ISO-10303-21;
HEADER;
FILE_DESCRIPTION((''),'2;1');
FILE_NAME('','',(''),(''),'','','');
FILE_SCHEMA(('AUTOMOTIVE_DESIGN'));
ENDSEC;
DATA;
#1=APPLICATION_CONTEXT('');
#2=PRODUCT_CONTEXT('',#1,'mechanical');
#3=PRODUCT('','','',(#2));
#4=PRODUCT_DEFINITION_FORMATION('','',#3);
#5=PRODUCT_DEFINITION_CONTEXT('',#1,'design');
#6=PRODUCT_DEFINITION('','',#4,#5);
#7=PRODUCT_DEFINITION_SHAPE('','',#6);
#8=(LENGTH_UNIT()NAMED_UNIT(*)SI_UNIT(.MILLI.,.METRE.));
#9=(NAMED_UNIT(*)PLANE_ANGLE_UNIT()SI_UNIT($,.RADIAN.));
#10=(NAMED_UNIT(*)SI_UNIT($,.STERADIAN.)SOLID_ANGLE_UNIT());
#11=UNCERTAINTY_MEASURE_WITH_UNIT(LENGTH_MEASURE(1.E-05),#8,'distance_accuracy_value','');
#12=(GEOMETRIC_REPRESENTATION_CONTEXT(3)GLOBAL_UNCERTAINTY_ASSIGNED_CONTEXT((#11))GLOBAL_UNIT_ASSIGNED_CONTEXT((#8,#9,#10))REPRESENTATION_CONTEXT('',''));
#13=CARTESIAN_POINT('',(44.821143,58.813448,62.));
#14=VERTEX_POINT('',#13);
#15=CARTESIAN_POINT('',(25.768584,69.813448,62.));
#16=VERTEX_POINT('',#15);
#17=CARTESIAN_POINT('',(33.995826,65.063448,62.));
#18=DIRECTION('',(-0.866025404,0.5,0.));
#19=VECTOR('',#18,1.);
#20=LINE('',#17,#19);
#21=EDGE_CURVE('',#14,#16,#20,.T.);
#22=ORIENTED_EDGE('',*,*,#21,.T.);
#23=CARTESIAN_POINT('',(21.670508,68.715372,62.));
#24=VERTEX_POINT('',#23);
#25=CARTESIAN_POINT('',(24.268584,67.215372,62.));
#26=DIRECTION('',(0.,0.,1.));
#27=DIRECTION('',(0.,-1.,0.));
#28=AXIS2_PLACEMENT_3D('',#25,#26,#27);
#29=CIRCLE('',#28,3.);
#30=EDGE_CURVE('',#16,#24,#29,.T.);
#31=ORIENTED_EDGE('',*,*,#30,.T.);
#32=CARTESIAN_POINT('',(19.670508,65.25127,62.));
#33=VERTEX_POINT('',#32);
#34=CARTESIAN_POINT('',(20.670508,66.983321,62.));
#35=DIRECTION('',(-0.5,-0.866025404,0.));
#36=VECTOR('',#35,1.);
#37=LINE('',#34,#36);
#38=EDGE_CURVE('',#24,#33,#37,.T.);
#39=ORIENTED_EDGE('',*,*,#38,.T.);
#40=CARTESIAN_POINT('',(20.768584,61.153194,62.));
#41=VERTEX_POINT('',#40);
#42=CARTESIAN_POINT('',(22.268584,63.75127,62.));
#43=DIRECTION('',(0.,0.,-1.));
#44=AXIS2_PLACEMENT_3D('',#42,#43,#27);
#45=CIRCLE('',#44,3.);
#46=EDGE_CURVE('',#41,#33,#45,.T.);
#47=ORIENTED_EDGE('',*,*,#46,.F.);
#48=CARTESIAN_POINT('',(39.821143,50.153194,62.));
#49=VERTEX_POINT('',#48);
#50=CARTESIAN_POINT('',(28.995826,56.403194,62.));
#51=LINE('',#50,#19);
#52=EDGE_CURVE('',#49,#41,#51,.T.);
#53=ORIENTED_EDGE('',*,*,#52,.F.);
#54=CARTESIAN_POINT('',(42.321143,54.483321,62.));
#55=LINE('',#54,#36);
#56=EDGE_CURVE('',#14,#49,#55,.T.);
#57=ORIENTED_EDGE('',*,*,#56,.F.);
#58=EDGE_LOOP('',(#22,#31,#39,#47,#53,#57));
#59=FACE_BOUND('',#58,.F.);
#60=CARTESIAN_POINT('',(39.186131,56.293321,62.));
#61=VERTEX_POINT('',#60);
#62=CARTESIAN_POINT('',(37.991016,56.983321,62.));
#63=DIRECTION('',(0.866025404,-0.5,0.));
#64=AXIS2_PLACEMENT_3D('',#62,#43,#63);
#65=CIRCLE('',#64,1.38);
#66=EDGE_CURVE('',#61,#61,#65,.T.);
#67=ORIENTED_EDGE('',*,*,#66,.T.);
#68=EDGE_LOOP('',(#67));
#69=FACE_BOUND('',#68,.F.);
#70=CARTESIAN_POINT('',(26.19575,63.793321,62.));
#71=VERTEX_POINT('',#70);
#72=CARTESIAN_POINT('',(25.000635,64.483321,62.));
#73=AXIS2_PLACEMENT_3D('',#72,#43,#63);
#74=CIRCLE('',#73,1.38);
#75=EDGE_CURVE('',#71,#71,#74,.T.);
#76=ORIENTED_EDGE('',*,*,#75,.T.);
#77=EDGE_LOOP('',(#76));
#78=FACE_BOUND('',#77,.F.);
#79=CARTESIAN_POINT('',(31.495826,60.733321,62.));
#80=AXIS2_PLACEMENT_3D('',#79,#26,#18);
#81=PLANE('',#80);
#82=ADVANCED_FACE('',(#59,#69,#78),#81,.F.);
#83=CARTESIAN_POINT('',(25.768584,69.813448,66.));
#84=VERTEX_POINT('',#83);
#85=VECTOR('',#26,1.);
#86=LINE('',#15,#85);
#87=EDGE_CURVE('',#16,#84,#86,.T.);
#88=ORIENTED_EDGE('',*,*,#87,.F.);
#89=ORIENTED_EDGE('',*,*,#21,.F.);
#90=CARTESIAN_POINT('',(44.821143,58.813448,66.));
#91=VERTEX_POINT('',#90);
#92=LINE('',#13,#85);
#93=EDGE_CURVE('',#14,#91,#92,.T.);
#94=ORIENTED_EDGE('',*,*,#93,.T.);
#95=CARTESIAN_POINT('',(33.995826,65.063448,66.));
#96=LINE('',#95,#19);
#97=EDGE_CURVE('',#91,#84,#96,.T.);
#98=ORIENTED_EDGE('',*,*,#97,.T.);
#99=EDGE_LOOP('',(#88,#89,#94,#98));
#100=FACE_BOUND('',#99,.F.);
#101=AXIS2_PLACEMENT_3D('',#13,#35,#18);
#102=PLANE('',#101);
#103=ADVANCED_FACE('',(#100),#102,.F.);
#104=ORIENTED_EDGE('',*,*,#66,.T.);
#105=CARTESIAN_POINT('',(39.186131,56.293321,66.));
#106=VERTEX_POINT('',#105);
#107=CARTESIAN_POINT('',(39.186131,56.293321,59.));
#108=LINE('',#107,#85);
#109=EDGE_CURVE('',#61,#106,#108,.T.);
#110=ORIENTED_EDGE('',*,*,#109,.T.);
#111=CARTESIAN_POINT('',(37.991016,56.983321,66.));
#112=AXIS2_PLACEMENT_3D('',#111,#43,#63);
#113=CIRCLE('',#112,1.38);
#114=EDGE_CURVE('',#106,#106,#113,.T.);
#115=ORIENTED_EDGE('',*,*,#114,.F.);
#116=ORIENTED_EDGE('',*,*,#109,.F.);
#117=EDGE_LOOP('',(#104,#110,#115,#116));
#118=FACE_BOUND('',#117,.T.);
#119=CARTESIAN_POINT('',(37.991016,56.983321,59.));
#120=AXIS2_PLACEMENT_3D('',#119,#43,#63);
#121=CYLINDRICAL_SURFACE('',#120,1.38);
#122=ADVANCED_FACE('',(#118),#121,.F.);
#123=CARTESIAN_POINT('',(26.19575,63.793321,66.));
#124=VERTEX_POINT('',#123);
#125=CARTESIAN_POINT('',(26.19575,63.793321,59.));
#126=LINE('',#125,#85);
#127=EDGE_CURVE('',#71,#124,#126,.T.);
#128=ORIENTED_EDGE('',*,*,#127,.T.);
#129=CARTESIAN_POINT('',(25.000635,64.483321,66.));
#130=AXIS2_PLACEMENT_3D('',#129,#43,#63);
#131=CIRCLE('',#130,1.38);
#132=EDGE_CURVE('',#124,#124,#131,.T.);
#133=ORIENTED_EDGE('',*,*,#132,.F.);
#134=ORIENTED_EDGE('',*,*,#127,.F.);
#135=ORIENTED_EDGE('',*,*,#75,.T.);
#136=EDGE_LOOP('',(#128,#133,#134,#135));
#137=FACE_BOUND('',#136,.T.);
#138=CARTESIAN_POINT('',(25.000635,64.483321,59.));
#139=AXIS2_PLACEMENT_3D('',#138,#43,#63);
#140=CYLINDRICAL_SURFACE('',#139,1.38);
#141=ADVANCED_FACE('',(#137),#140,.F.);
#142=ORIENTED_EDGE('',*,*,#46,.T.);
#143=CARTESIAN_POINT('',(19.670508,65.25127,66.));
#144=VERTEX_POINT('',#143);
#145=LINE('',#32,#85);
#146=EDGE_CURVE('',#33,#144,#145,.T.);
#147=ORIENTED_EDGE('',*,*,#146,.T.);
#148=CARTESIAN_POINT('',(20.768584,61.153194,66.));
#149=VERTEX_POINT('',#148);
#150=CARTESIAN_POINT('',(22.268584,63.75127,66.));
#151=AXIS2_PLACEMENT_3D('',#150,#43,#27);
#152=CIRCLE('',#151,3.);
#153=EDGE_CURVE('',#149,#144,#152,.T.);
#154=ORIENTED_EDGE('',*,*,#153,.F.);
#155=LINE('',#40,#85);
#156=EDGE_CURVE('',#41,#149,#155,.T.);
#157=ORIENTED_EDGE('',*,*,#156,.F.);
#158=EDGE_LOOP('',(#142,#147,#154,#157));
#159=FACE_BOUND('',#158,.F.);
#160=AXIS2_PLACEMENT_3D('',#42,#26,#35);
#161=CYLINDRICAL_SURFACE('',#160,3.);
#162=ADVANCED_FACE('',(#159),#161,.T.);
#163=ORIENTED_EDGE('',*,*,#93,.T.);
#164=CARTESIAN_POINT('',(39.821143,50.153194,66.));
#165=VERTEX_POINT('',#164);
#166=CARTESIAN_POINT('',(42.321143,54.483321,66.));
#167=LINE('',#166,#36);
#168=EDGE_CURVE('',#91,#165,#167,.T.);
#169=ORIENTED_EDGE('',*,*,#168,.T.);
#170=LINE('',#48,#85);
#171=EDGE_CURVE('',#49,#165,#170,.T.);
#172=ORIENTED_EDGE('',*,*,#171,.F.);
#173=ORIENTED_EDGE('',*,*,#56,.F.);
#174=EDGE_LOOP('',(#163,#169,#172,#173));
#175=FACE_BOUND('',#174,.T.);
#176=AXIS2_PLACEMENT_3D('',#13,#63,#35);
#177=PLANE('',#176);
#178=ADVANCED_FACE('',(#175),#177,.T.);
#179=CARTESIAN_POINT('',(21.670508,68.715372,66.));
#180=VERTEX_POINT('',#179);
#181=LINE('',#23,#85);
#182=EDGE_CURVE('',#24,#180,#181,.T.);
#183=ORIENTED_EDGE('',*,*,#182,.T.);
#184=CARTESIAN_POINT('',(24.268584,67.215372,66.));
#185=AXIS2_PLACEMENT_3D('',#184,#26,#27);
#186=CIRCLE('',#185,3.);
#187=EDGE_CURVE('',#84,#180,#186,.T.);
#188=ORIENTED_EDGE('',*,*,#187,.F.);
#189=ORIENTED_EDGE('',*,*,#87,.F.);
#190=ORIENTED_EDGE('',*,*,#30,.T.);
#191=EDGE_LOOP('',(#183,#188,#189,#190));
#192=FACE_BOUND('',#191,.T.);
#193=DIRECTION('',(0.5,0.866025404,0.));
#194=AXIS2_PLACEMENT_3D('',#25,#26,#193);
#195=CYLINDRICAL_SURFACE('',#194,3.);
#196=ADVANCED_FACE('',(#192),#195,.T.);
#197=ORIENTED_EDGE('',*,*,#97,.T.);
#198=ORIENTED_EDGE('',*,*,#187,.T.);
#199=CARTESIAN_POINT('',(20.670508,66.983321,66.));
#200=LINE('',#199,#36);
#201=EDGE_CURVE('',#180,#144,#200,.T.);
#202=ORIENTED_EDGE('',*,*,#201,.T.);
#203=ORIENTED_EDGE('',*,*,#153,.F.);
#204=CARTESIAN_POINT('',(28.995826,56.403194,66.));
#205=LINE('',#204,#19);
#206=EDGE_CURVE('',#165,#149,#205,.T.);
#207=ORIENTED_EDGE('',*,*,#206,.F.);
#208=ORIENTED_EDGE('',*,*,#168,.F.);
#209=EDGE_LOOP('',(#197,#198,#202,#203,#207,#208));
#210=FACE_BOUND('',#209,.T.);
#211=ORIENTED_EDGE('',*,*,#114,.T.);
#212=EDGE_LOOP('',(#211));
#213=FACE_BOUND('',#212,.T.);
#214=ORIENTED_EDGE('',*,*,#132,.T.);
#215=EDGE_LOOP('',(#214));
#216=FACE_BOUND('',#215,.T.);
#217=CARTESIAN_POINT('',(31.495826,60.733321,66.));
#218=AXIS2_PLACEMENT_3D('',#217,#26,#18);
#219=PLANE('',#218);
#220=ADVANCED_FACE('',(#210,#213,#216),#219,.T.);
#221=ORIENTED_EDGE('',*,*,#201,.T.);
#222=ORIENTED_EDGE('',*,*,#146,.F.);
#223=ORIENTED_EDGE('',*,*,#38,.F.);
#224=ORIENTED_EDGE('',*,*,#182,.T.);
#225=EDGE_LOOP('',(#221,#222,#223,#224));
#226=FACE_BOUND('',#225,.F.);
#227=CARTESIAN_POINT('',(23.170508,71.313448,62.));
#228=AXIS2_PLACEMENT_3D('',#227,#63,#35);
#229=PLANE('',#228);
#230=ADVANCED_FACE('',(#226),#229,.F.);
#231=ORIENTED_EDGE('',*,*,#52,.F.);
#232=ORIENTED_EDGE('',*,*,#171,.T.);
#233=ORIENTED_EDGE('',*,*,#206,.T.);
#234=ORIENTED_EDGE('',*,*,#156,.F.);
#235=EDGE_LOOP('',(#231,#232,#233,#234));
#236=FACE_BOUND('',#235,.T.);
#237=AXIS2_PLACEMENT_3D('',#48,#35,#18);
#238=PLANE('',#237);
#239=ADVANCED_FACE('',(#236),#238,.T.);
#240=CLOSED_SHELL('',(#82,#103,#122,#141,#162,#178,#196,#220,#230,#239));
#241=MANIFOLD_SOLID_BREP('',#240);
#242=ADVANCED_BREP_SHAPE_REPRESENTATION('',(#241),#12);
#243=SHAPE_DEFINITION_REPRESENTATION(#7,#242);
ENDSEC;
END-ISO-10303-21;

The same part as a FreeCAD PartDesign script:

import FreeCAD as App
import Part
import Sketcher
from FreeCAD import Vector
Q = App.Units.Quantity


def edges_at(feature, points):
    """Names of the edges that pass closest to the given points."""
    edges = feature.Shape.Edges
    near = lambda p: min(range(len(edges)), key=lambda i: edges[i].distToShape(Part.Vertex(*p))[0])
    return sorted({f"Edge{near(p) + 1}" for p in points})

doc = App.newDocument("Part")
body = doc.addObject("PartDesign::Body", "Body")

sketch1 = doc.addObject("Sketcher::SketchObject", "Sketch")
body.addObject(sketch1)
sketch1.AttachmentSupport = (doc.XY_Plane, [""])
sketch1.MapMode = "FlatFace"
sketch1.AttachmentOffset = App.Placement(Vector(0, 0, 59), App.Rotation())
sketch1.addGeometry(Part.Circle(Vector(25, 52, 0), Vector(0, 0, 1), 1.4), False)
sketch1.addConstraint([
    Sketcher.Constraint("Diameter", 0, Q("2.76 mm")),
    Sketcher.Constraint("DistanceX", -1, 1, 0, 3, Q("25 mm")),
    Sketcher.Constraint("DistanceY", -1, 1, 0, 3, Q("52 mm")),
])
pad1 = doc.addObject("PartDesign::Pad", "Pad")
body.addObject(pad1)
pad1.Profile = sketch1
pad1.Length = 10
body2 = doc.addObject("PartDesign::Body", "Body001")

sketch2 = doc.addObject("Sketcher::SketchObject", "Sketch001")
body2.addObject(sketch2)
sketch2.AttachmentSupport = (doc.getObject("XY_Plane001"), [""])
sketch2.MapMode = "FlatFace"
sketch2.AttachmentOffset = App.Placement(Vector(0, 0, 59), App.Rotation())
sketch2.addGeometry(Part.Circle(Vector(40, 52, 0), Vector(0, 0, 1), 1.4), False)
sketch2.addConstraint([
    Sketcher.Constraint("Diameter", 0, Q("2.76 mm")),
    Sketcher.Constraint("DistanceX", -1, 1, 0, 3, Q("40 mm")),
    Sketcher.Constraint("DistanceY", -1, 1, 0, 3, Q("52 mm")),
])
pad2 = doc.addObject("PartDesign::Pad", "Pad001")
body2.addObject(pad2)
pad2.Profile = sketch2
pad2.Length = 10
body3 = doc.addObject("PartDesign::Body", "Body002")

sketch3 = doc.addObject("Sketcher::SketchObject", "Sketch002")
body3.addObject(sketch3)
sketch3.AttachmentSupport = (doc.getObject("XY_Plane002"), [""])
sketch3.MapMode = "FlatFace"
sketch3.AttachmentOffset = App.Placement(Vector(0, 0, 62), App.Rotation())
sketch3.addGeometry([
    Part.LineSegment(Vector(45, 47, 0), Vector(45, 57, 0)),
    Part.LineSegment(Vector(45, 57, 0), Vector(20, 57, 0)),
    Part.LineSegment(Vector(20, 57, 0), Vector(20, 47, 0)),
    Part.LineSegment(Vector(20, 47, 0), Vector(45, 47, 0)),
], False)
sketch3.addConstraint([
    Sketcher.Constraint("Coincident", 0, 2, 1, 1),
    Sketcher.Constraint("Coincident", 1, 2, 2, 1),
    Sketcher.Constraint("Coincident", 2, 2, 3, 1),
    Sketcher.Constraint("Coincident", 3, 2, 0, 1),
    Sketcher.Constraint("Vertical", 0),
    Sketcher.Constraint("Horizontal", 1),
    Sketcher.Constraint("Vertical", 2),
    Sketcher.Constraint("Horizontal", 3),
    Sketcher.Constraint("DistanceX", 1, 2, 1, 1, Q("25 mm")),
    Sketcher.Constraint("DistanceY", 0, 1, 0, 2, Q("10 mm")),
    Sketcher.Constraint("DistanceX", -1, 1, 0, 2, Q("45 mm")),
    Sketcher.Constraint("DistanceY", -1, 1, 0, 2, Q("57 mm")),
])
pad3 = doc.addObject("PartDesign::Pad", "Pad002")
body3.addObject(pad3)
pad3.Profile = sketch3
pad3.Length = 4
doc.recompute()

boolean = doc.addObject("PartDesign::Boolean", "Boolean")
body3.addObject(boolean)
boolean.Type = "Cut"
boolean.addObjects([body2])
doc.recompute()

boolean2 = doc.addObject("PartDesign::Boolean", "Boolean001")
body3.addObject(boolean2)
boolean2.Type = "Cut"
boolean2.addObjects([body])
body4 = doc.addObject("PartDesign::Body", "Body003")
doc.recompute()

body3.Placement = App.Placement(Vector(-20.65, 26.95, 0), App.Rotation(Vector(0, 0, -1), 30))
boolean3 = doc.addObject("PartDesign::Boolean", "Boolean002")
body4.addObject(boolean3)
boolean3.Type = "Fuse"
boolean3.addObjects([body3])
doc.recompute()

fillet = doc.addObject("PartDesign::Fillet", "Fillet")
body4.addObject(fillet)
fillet.Base = (boolean3, edges_at(boolean3, [(25.171, 66.313, 64), (20.171, 57.653, 64)]))
fillet.Radius = 3
body5 = doc.addObject("PartDesign::Body", "Body004")
doc.recompute()

body4.Placement = App.Placement(Vector(-2, 5, 0), App.Rotation(Vector(0, 0, 1), 0))
boolean4 = doc.addObject("PartDesign::Boolean", "Boolean003")
body5.addObject(boolean4)
boolean4.Type = "Fuse"
boolean4.addObjects([body4])

doc.recompute()
